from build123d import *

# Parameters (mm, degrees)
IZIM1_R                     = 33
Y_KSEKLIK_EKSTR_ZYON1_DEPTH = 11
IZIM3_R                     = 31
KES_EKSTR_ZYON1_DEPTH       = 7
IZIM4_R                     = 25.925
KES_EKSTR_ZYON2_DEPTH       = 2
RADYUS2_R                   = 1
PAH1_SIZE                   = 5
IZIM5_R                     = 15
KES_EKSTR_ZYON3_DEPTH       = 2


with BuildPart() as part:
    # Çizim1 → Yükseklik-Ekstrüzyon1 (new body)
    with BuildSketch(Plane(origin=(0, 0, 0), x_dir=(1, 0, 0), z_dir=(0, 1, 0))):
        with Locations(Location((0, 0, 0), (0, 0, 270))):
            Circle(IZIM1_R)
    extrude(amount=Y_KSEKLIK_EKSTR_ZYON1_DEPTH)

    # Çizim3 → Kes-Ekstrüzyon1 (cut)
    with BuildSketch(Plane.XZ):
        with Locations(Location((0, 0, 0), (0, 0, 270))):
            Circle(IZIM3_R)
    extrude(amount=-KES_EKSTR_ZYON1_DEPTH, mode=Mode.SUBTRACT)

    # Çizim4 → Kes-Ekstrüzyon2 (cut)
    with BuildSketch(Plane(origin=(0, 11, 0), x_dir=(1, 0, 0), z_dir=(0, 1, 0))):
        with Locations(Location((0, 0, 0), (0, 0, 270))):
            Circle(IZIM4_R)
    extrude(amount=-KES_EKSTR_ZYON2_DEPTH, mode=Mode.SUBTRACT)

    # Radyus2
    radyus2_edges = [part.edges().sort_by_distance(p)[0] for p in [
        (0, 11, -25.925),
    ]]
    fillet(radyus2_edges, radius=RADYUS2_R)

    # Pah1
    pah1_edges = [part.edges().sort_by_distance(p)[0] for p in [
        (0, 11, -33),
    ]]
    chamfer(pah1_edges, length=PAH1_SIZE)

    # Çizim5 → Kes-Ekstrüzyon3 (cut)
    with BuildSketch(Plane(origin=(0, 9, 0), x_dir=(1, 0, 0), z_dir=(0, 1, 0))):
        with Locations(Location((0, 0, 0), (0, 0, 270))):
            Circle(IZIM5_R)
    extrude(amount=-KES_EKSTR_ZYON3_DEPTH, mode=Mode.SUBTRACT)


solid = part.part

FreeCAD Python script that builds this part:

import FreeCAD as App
import Part
import Sketcher
Q = App.Units.Quantity


def edges_at(feature, points):
    """Names of the edges that pass closest to the given points."""
    edges = feature.Shape.Edges
    near = lambda p: min(range(len(edges)), key=lambda i: edges[i].distToShape(Part.Vertex(*p))[0])
    return sorted({f"Edge{near(p) + 1}" for p in points})

doc = App.newDocument("Part")
body = doc.addObject("PartDesign::Body", "Body")

# Sketch on XZ plane
sketch1 = body.newObject("Sketcher::SketchObject", "Sketch")
sketch1.AttachmentSupport = (doc.getObject("XZ_Plane"), [""])
sketch1.MapMode = "FlatFace"
sketch1.addGeometry(Part.Circle(App.Vector(0, 0, 0), App.Vector(0, 0, 1), 33), False)
sketch1.addConstraint(Sketcher.Constraint("Coincident", 0, 3, -1, 1))
sketch1.addConstraint(Sketcher.Constraint("Diameter", 0, Q("66 mm")))
pad1 = body.newObject("PartDesign::Pad", "Pad")
pad1.Profile = sketch1
pad1.Length = 11
pad1.Reversed = True

# Sketch on XZ plane
sketch2 = body.newObject("Sketcher::SketchObject", "Sketch001")
sketch2.AttachmentSupport = (doc.getObject("XZ_Plane"), [""])
sketch2.MapMode = "FlatFace"
sketch2.addGeometry(Part.Circle(App.Vector(0, 0, 0), App.Vector(0, 0, 1), 31), False)
sketch2.addConstraint(Sketcher.Constraint("Coincident", 0, 3, -1, 1))
sketch2.addConstraint(Sketcher.Constraint("Diameter", 0, Q("62 mm")))
pocket1 = body.newObject("PartDesign::Pocket", "Pocket")
pocket1.Profile = sketch2
pocket1.Length = 7

# Sketch on XZ plane
sketch3 = body.newObject("Sketcher::SketchObject", "Sketch002")
sketch3.AttachmentSupport = (doc.getObject("XZ_Plane"), [""])
sketch3.MapMode = "FlatFace"
sketch3.AttachmentOffset = App.Placement(App.Vector(0, 0, -11), App.Rotation())
sketch3.addGeometry(Part.Circle(App.Vector(0, 0, 0), App.Vector(0, 0, 1), 26), False)
sketch3.addConstraint(Sketcher.Constraint("Coincident", 0, 3, -1, 1))
sketch3.addConstraint(Sketcher.Constraint("Diameter", 0, Q("51.85 mm")))
pocket2 = body.newObject("PartDesign::Pocket", "Pocket001")
pocket2.Profile = sketch3
pocket2.Length = 2
pocket2.Reversed = True
doc.recompute()

fillet = body.newObject("PartDesign::Fillet", "Fillet")
fillet.Base = (pocket2, edges_at(pocket2, [(0, 11, -25.925)]))
fillet.Radius = 1
doc.recompute()

chamfer = body.newObject("PartDesign::Chamfer", "Chamfer")
chamfer.Base = (fillet, edges_at(fillet, [(0, 11, -33)]))
chamfer.Size = 5

# Sketch on XZ plane
sketch4 = body.newObject("Sketcher::SketchObject", "Sketch003")
sketch4.AttachmentSupport = (doc.getObject("XZ_Plane"), [""])
sketch4.MapMode = "FlatFace"
sketch4.AttachmentOffset = App.Placement(App.Vector(0, 0, -9), App.Rotation())
sketch4.addGeometry(Part.Circle(App.Vector(0, 0, 0), App.Vector(0, 0, 1), 15), False)
sketch4.addConstraint(Sketcher.Constraint("Coincident", 0, 3, -1, 1))
sketch4.addConstraint(Sketcher.Constraint("Diameter", 0, Q("30 mm")))
pocket3 = body.newObject("PartDesign::Pocket", "Pocket002")
pocket3.Profile = sketch4
pocket3.Length = 2
pocket3.Reversed = True

doc.recompute()
